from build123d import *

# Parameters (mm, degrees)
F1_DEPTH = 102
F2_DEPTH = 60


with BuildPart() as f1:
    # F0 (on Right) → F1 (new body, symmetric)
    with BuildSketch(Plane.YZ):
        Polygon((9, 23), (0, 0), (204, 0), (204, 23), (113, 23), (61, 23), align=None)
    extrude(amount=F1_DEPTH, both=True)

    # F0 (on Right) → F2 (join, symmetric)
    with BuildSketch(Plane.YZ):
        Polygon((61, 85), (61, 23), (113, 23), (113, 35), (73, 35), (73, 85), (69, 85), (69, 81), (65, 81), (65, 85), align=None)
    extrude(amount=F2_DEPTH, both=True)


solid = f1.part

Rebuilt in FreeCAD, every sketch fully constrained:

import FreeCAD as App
import Part
import Sketcher
from FreeCAD import Vector
Q = App.Units.Quantity


def add_polygon(sketch, points):
    """Adds a closed chain of lines whose ends are joined by coincident constraints."""
    first, n = sketch.GeometryCount, len(points)
    for a, b in zip(points, points[1:] + points[:1]):
        sketch.addGeometry(Part.LineSegment(App.Vector(*a, 0), App.Vector(*b, 0)), False)
    for i in range(n):
        sketch.addConstraint(Sketcher.Constraint("Coincident", first + i, 2, first + (i + 1) % n, 1))

doc = App.newDocument("Part")
body = doc.addObject("PartDesign::Body", "Body")

sketch1 = body.newObject("Sketcher::SketchObject", "Sketch")
sketch1.AttachmentSupport = (doc.getObject("YZ_Plane"), [""])
sketch1.MapMode = "FlatFace"
add_polygon(sketch1, [(9, 23), (0, 0), (204, 0), (204, 23)])
sketch1.addConstraint([
    Sketcher.Constraint("Horizontal", 1),
    Sketcher.Constraint("Vertical", 2),
    Sketcher.Constraint("Horizontal", 3),
    Sketcher.Constraint("Coincident", 0, 2, -1, 1),
    Sketcher.Constraint("DistanceX", 1, 1, 1, 2, Q("204 mm")),
    Sketcher.Constraint("DistanceX", 3, 2, 3, 1, Q("195 mm")),
    Sketcher.Constraint("DistanceY", 2, 1, 2, 2, Q("23 mm")),
])
pad1 = body.newObject("PartDesign::Pad", "Pad")
pad1.Profile = sketch1
pad1.Length = 204
pad1.Midplane = True

sketch2 = body.newObject("Sketcher::SketchObject", "Sketch001")
sketch2.AttachmentSupport = (doc.getObject("YZ_Plane"), [""])
sketch2.MapMode = "FlatFace"
add_polygon(sketch2, [(61, 85), (61, 23), (113, 23), (113, 35), (73, 35), (73, 85), (69, 85), (69, 81), (65, 81), (65, 85)])
sketch2.addConstraint([
    Sketcher.Constraint("Vertical", 0),
    Sketcher.Constraint("Horizontal", 1),
    Sketcher.Constraint("Vertical", 2),
    Sketcher.Constraint("Horizontal", 3),
    Sketcher.Constraint("Vertical", 4),
    Sketcher.Constraint("Horizontal", 5),
    Sketcher.Constraint("Vertical", 6),
    Sketcher.Constraint("Horizontal", 7),
    Sketcher.Constraint("Vertical", 8),
    Sketcher.Constraint("Horizontal", 9),
    Sketcher.Constraint("Horizontal", 5, 2, 8, 2),
    Sketcher.Constraint("Equal", 5, 7),
    Sketcher.Constraint("Equal", 7, 9),
    Sketcher.Constraint("Equal", 9, 6),
    Sketcher.Constraint("DistanceX", 1, 1, 1, 2, Q("52 mm")),
    Sketcher.Constraint("DistanceX", 3, 2, 3, 1, Q("40 mm")),
    Sketcher.Constraint("DistanceY", 0, 2, 0, 1, Q("62 mm")),
    Sketcher.Constraint("DistanceY", 2, 1, 2, 2, Q("12 mm")),
    Sketcher.Constraint("DistanceX", -1, 1, 0, 2, Q("61 mm")),
    Sketcher.Constraint("DistanceY", -1, 1, 0, 2, Q("23 mm")),
])
pad2 = body.newObject("PartDesign::Pad", "Pad001")
pad2.Profile = sketch2
pad2.Length = 120
pad2.Midplane = True

doc.recompute()
